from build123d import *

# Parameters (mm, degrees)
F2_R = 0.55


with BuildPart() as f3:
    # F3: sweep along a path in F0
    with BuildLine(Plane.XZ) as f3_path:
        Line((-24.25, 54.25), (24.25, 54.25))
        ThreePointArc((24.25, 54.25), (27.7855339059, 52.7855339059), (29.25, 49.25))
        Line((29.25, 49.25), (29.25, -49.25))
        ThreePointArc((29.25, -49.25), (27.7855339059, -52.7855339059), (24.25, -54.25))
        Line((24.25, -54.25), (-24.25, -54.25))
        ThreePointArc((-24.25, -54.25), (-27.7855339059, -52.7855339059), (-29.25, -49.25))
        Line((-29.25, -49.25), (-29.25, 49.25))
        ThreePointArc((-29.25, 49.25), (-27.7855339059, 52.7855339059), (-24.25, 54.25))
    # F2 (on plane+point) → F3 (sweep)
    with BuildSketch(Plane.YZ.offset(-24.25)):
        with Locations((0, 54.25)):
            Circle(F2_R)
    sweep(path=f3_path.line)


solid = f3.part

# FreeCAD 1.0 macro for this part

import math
import FreeCAD as App
import Part
import Sketcher

V = App.Vector
Q = App.Units.Quantity

doc = App.newDocument("Part")
body = doc.addObject("PartDesign::Body", "Body")

# Sketch on YZ plane
sketch1 = doc.addObject("Sketcher::SketchObject", "Sketch")
body.addObject(sketch1)
sketch1.AttachmentSupport = (doc.YZ_Plane, [""])
sketch1.MapMode = "FlatFace"
sketch1.AttachmentOffset = App.Placement(V(0, 0, -24.25), App.Rotation())
sketch1.addGeometry(Part.Circle(V(0, 54.2, 0), V(0, 0, 1), 0.6), False)
sketch1.addConstraint([
    Sketcher.Constraint("PointOnObject", 0, 3, -2),
    Sketcher.Constraint("Diameter", 0, Q("1.1 mm")),
    Sketcher.Constraint("DistanceY", -1, 1, 0, 3, Q("54.25 mm")),
])

# Sketch on XZ plane
sketch2 = doc.addObject("Sketcher::SketchObject", "Sketch001")
body.addObject(sketch2)
sketch2.AttachmentSupport = (doc.XZ_Plane, [""])
sketch2.MapMode = "FlatFace"
sketch2.addGeometry([
    Part.LineSegment(V(-24, 54, 0), V(24, 54, 0)),  # 0
    Part.ArcOfCircle(Part.Circle(V(24, 49, 0), V(0, 0, 1), 5), math.radians(0), math.radians(90)),  # 1
    Part.LineSegment(V(29, 49, 0), V(29, -49, 0)),  # 2
    Part.ArcOfCircle(Part.Circle(V(24, -49, 0), V(0, 0, 1), 5), math.radians(-90), math.radians(0)),  # 3
    Part.LineSegment(V(24, -54, 0), V(-24, -54, 0)),  # 4
    Part.ArcOfCircle(Part.Circle(V(-24, -49, 0), V(0, 0, 1), 5), math.radians(180), math.radians(270)),  # 5
    Part.LineSegment(V(-29, -49, 0), V(-29, 49, 0)),  # 6
    Part.ArcOfCircle(Part.Circle(V(-24, 49, 0), V(0, 0, 1), 5), math.radians(90), math.radians(180)),  # 7
], False)
sketch2.addConstraint([
    Sketcher.Constraint("Tangent", 0, 2, 1, 2),
    Sketcher.Constraint("Tangent", 1, 1, 2, 1),
    Sketcher.Constraint("Tangent", 2, 2, 3, 2),
    Sketcher.Constraint("Tangent", 3, 1, 4, 1),
    Sketcher.Constraint("Tangent", 4, 2, 5, 2),
    Sketcher.Constraint("Tangent", 5, 1, 6, 1),
    Sketcher.Constraint("Tangent", 6, 2, 7, 2),
    Sketcher.Constraint("Tangent", 7, 1, 0, 1),
    Sketcher.Constraint("Horizontal", 0),
    Sketcher.Constraint("Vertical", 2),
    Sketcher.Constraint("Horizontal", 4),
    Sketcher.Constraint("Vertical", 6),
    Sketcher.Constraint("Equal", 1, 3),
    Sketcher.Constraint("Equal", 3, 5),
    Sketcher.Constraint("Equal", 5, 7),
    Sketcher.Constraint("Symmetric", 1, 3, 5, 3, -1, 1),
    Sketcher.Constraint("Radius", 1, Q("5 mm")),
    Sketcher.Constraint("DistanceX", 0, 1, 0, 2, Q("48.5 mm")),
    Sketcher.Constraint("DistanceY", 2, 2, 2, 1, Q("98.5 mm")),
])
doc.recompute()

additivepipe = doc.addObject("PartDesign::AdditivePipe", "AdditivePipe")
body.addObject(additivepipe)
additivepipe.Profile = sketch1
additivepipe.Spine = (sketch2, ["Edge1", "Edge2", "Edge3", "Edge4", "Edge5", "Edge6", "Edge7", "Edge8"])

doc.recompute()
